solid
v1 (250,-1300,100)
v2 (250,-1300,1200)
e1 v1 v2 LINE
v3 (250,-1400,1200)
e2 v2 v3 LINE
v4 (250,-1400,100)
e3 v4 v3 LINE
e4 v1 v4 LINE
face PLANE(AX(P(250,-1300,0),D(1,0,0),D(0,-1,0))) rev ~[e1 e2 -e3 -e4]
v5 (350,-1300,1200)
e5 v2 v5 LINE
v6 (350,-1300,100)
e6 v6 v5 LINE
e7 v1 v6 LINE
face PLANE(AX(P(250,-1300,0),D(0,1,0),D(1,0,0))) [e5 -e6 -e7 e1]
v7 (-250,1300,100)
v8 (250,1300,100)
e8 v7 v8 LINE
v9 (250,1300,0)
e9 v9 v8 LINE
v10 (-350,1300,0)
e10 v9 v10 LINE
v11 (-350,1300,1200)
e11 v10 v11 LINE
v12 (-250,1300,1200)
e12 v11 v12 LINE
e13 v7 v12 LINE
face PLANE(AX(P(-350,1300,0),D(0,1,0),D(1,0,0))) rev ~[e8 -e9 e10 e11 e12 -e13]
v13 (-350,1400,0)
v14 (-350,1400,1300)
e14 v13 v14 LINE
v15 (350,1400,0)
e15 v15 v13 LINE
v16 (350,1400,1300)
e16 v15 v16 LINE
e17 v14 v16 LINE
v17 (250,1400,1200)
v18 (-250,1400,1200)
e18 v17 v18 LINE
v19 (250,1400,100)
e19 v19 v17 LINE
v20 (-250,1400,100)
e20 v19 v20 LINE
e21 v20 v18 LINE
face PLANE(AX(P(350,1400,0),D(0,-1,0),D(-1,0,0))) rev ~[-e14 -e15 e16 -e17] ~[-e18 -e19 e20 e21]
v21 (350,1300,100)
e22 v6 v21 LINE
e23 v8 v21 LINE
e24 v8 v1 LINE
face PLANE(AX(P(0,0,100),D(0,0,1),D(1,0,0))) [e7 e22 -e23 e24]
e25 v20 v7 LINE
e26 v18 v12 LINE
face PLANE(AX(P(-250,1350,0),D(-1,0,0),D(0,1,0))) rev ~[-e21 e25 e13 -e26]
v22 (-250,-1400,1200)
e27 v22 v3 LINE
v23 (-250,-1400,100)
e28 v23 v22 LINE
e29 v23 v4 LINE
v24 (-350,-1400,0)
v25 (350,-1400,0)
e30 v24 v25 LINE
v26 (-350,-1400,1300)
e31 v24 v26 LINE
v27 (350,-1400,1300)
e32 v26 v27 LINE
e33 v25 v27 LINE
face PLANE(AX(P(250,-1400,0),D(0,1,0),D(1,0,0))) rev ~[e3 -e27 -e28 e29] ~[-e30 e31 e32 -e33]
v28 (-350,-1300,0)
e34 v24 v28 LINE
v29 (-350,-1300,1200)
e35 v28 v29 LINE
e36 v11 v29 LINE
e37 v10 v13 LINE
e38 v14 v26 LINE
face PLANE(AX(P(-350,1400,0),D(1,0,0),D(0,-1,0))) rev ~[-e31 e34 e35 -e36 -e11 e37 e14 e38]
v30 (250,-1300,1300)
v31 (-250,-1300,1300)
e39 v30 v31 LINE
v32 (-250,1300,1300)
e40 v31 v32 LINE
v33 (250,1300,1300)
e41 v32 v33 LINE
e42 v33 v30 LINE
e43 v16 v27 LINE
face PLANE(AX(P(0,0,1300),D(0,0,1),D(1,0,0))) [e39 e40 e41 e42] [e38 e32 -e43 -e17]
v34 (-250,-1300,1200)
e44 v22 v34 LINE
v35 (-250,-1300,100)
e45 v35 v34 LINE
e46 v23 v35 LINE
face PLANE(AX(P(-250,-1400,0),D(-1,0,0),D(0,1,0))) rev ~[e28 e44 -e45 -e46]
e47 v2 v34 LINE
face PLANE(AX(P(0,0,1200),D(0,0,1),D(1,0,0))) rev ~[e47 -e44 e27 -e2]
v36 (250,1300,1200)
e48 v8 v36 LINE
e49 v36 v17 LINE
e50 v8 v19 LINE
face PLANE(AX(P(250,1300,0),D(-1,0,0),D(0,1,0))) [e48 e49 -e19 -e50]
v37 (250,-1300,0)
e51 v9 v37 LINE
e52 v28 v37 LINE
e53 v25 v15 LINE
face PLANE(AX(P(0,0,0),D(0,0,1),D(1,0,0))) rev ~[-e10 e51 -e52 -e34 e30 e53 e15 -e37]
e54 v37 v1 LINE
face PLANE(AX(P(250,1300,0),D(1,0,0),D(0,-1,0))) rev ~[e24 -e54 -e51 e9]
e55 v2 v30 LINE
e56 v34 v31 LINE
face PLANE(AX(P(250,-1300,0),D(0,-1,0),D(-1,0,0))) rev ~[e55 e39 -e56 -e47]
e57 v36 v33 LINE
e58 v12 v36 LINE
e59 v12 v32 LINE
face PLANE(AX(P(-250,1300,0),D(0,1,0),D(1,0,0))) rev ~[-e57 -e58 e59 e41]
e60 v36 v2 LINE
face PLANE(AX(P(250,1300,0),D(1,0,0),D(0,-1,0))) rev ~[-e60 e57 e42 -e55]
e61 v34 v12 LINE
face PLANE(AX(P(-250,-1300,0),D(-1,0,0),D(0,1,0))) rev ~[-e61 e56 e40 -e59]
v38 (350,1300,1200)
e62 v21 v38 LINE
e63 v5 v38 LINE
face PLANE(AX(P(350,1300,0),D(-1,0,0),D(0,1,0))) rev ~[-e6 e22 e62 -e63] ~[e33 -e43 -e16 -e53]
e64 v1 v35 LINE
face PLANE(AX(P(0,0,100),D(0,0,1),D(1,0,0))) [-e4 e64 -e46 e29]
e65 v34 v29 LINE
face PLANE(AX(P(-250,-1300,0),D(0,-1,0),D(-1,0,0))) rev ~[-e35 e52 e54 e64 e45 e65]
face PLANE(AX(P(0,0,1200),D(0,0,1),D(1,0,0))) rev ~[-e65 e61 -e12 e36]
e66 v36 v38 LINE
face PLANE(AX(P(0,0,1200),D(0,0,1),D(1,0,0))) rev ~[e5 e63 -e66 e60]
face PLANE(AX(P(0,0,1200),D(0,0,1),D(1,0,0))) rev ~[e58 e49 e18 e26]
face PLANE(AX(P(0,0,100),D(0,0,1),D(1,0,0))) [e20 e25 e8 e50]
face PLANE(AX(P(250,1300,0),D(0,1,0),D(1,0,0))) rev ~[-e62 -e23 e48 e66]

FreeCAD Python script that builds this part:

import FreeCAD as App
import Part
import Sketcher
from FreeCAD import Vector

doc = App.newDocument("Part")
body = doc.addObject("PartDesign::Body", "Body")

# Sketch on XY plane
sketch1 = body.newObject("Sketcher::SketchObject", "Sketch")
sketch1.AttachmentSupport = (doc.getObject("XY_Plane"), [""])
sketch1.MapMode = "FlatFace"
sketch1.addGeometry([
    Part.LineSegment(Vector(350, 1400, 0), Vector(-350, 1400, 0)),  # 0
    Part.LineSegment(Vector(-350, 1400, 0), Vector(-350, -1400, 0)),  # 1
    Part.LineSegment(Vector(-350, -1400, 0), Vector(350, -1400, 0)),  # 2
    Part.LineSegment(Vector(350, -1400, 0), Vector(350, 1400, 0)),  # 3
    Part.LineSegment(Vector(250, 1300, 0), Vector(250, -1300, 0)),  # 4
    Part.LineSegment(Vector(250, -1300, 0), Vector(-250, -1300, 0)),  # 5
    Part.LineSegment(Vector(-250, -1300, 0), Vector(-250, 1300, 0)),  # 6
    Part.LineSegment(Vector(-250, 1300, 0), Vector(250, 1300, 0)),  # 7
], False)
sketch1.addConstraint([
    Sketcher.Constraint("Coincident", 0, 2, 1, 1),
    Sketcher.Constraint("Coincident", 1, 2, 2, 1),
    Sketcher.Constraint("Coincident", 2, 2, 3, 1),
    Sketcher.Constraint("Coincident", 3, 2, 0, 1),
    Sketcher.Constraint("Coincident", 4, 2, 5, 1),
    Sketcher.Constraint("Coincident", 5, 2, 6, 1),
    Sketcher.Constraint("Coincident", 6, 2, 7, 1),
    Sketcher.Constraint("Coincident", 7, 2, 4, 1),
    Sketcher.Constraint("Horizontal", 0),
    Sketcher.Constraint("Vertical", 1),
    Sketcher.Constraint("Horizontal", 2),
    Sketcher.Constraint("Vertical", 3),
    Sketcher.Constraint("Vertical", 4),
    Sketcher.Constraint("Horizontal", 5),
    Sketcher.Constraint("Vertical", 6),
    Sketcher.Constraint("Horizontal", 7),
    Sketcher.Constraint("Symmetric", 0, 2, 2, 2, -1, 1),
    Sketcher.Constraint("Symmetric", 4, 2, 6, 2, -1, 1),
    Sketcher.Constraint("DistanceY", 4, 2, 4, 1, 2600.0),
    Sketcher.Constraint("DistanceX", 4, 2, 2, 2, 100.0),
    Sketcher.Constraint("DistanceY", 2, 2, 4, 2, 100.0),
    Sketcher.Constraint("DistanceX", 1, 2, 4, 2, 600.0),
])
pad1 = body.newObject("PartDesign::Pad", "Pad")
pad1.Profile = sketch1
pad1.Length = 1300

# Sketch on XY plane
sketch2 = body.newObject("Sketcher::SketchObject", "Sketch001")
sketch2.AttachmentSupport = (doc.getObject("XY_Plane"), [""])
sketch2.MapMode = "FlatFace"
sketch2.addGeometry([
    Part.LineSegment(Vector(250, 1300, 0), Vector(250, 1400, 0)),  # 0
    Part.LineSegment(Vector(250, 1400, 0), Vector(-250, 1400, 0)),  # 1
    Part.LineSegment(Vector(-250, 1400, 0), Vector(-250, 1300, 0)),  # 2
    Part.LineSegment(Vector(-250, 1300, 0), Vector(-350, 1300, 0)),  # 3
    Part.LineSegment(Vector(-350, 1300, 0), Vector(-350, -1300, 0)),  # 4
    Part.LineSegment(Vector(-350, -1300, 0), Vector(-250, -1300, 0)),  # 5
    Part.LineSegment(Vector(-250, -1300, 0), Vector(-250, -1400, 0)),  # 6
    Part.LineSegment(Vector(-250, -1400, 0), Vector(250, -1400, 0)),  # 7
    Part.LineSegment(Vector(250, -1400, 0), Vector(250, -1300, 0)),  # 8
    Part.LineSegment(Vector(250, -1300, 0), Vector(350, -1300, 0)),  # 9
    Part.LineSegment(Vector(350, -1300, 0), Vector(350, 1300, 0)),  # 10
    Part.LineSegment(Vector(350, 1300, 0), Vector(250, 1300, 0)),  # 11
], False)
sketch2.addConstraint([
    Sketcher.Constraint("Coincident", 0, 2, 1, 1),
    Sketcher.Constraint("Coincident", 1, 2, 2, 1),
    Sketcher.Constraint("Coincident", 2, 2, 3, 1),
    Sketcher.Constraint("Coincident", 3, 2, 4, 1),
    Sketcher.Constraint("Coincident", 4, 2, 5, 1),
    Sketcher.Constraint("Coincident", 5, 2, 6, 1),
    Sketcher.Constraint("Coincident", 6, 2, 7, 1),
    Sketcher.Constraint("Coincident", 7, 2, 8, 1),
    Sketcher.Constraint("Coincident", 8, 2, 9, 1),
    Sketcher.Constraint("Coincident", 9, 2, 10, 1),
    Sketcher.Constraint("Coincident", 10, 2, 11, 1),
    Sketcher.Constraint("Coincident", 11, 2, 0, 1),
    Sketcher.Constraint("Vertical", 0),
    Sketcher.Constraint("Horizontal", 1),
    Sketcher.Constraint("Vertical", 2),
    Sketcher.Constraint("Horizontal", 3),
    Sketcher.Constraint("Vertical", 4),
    Sketcher.Constraint("Horizontal", 5),
    Sketcher.Constraint("Vertical", 6),
    Sketcher.Constraint("Horizontal", 7),
    Sketcher.Constraint("Vertical", 8),
    Sketcher.Constraint("Horizontal", 9),
    Sketcher.Constraint("Vertical", 10),
    Sketcher.Constraint("Horizontal", 11),
    Sketcher.Constraint("Symmetric", 0, 2, 6, 2, -1, 1),
    Sketcher.Constraint("Symmetric", 2, 2, 8, 2, -1, 1),
    Sketcher.Constraint("Symmetric", 4, 2, 10, 2, -1, 1),
    Sketcher.Constraint("Symmetric", 5, 2, 8, 2, -2),
    Sketcher.Constraint("Equal", 11, 0),
    Sketcher.Constraint("DistanceX", 3, 2, 3, 1, 100.0),
    Sketcher.Constraint("DistanceY", 4, 2, 4, 1, 2600.0),
    Sketcher.Constraint("DistanceX", 3, 2, 0, 2, 600.0),
])
pocket1 = body.newObject("PartDesign::Pocket", "Pocket")
pocket1.Profile = sketch2
pocket1.Length = 1200
pocket1.Reversed = True

# Sketch on XY plane
sketch3 = body.newObject("Sketcher::SketchObject", "Sketch002")
sketch3.AttachmentSupport = (doc.getObject("XY_Plane"), [""])
sketch3.MapMode = "FlatFace"
sketch3.addGeometry([
    Part.LineSegment(Vector(250, 1300, 0), Vector(250, 1400, 0)),  # 0
    Part.LineSegment(Vector(250, 1400, 0), Vector(-250, 1400, 0)),  # 1
    Part.LineSegment(Vector(-250, 1400, 0), Vector(-250, 1300, 0)),  # 2
    Part.LineSegment(Vector(-250, 1300, 0), Vector(250, 1300, 0)),  # 3
    Part.LineSegment(Vector(350, -1300, 0), Vector(350, 1300, 0)),  # 4
    Part.LineSegment(Vector(350, 1300, 0), Vector(250, 1300, 0)),  # 5
    Part.LineSegment(Vector(250, 1300, 0), Vector(250, -1300, 0)),  # 6
    Part.LineSegment(Vector(250, -1300, 0), Vector(350, -1300, 0)),  # 7
    Part.LineSegment(Vector(250, -1400, 0), Vector(250, -1300, 0)),  # 8
    Part.LineSegment(Vector(250, -1300, 0), Vector(-250, -1300, 0)),  # 9
    Part.LineSegment(Vector(-250, -1300, 0), Vector(-250, -1400, 0)),  # 10
    Part.LineSegment(Vector(-250, -1400, 0), Vector(250, -1400, 0)),  # 11
], False)
sketch3.addConstraint([
    Sketcher.Constraint("Coincident", 0, 2, 1, 1),
    Sketcher.Constraint("Coincident", 1, 2, 2, 1),
    Sketcher.Constraint("Coincident", 2, 2, 3, 1),
    Sketcher.Constraint("Coincident", 3, 2, 0, 1),
    Sketcher.Constraint("Coincident", 4, 2, 5, 1),
    Sketcher.Constraint("Coincident", 5, 2, 6, 1),
    Sketcher.Constraint("Coincident", 6, 2, 7, 1),
    Sketcher.Constraint("Coincident", 7, 2, 4, 1),
    Sketcher.Constraint("Coincident", 8, 2, 9, 1),
    Sketcher.Constraint("Coincident", 9, 2, 10, 1),
    Sketcher.Constraint("Coincident", 10, 2, 11, 1),
    Sketcher.Constraint("Coincident", 11, 2, 8, 1),
    Sketcher.Constraint("Vertical", 0),
    Sketcher.Constraint("Horizontal", 1),
    Sketcher.Constraint("Vertical", 2),
    Sketcher.Constraint("Horizontal", 3),
    Sketcher.Constraint("Vertical", 4),
    Sketcher.Constraint("Horizontal", 5),
    Sketcher.Constraint("Vertical", 6),
    Sketcher.Constraint("Horizontal", 7),
    Sketcher.Constraint("Vertical", 8),
    Sketcher.Constraint("Horizontal", 9),
    Sketcher.Constraint("Vertical", 10),
    Sketcher.Constraint("Horizontal", 11),
    Sketcher.Constraint("Coincident", 5, 2, 3, 2),
    Sketcher.Constraint("Coincident", 8, 2, 6, 2),
    Sketcher.Constraint("Symmetric", 2, 2, 6, 2, -1, 1),
    Sketcher.Constraint("Symmetric", 0, 2, 10, 2, -1, 1),
    Sketcher.Constraint("Equal", 7, 0),
    Sketcher.Constraint("DistanceX", 5, 2, 5, 1, 100.0),
    Sketcher.Constraint("DistanceY", 4, 1, 4, 2, 2600.0),
    Sketcher.Constraint("DistanceX", 2, 2, 4, 2, 600.0),
])
pad2 = body.newObject("PartDesign::Pad", "Pad001")
pad2.Profile = sketch3
pad2.Length = 100

doc.recompute()
